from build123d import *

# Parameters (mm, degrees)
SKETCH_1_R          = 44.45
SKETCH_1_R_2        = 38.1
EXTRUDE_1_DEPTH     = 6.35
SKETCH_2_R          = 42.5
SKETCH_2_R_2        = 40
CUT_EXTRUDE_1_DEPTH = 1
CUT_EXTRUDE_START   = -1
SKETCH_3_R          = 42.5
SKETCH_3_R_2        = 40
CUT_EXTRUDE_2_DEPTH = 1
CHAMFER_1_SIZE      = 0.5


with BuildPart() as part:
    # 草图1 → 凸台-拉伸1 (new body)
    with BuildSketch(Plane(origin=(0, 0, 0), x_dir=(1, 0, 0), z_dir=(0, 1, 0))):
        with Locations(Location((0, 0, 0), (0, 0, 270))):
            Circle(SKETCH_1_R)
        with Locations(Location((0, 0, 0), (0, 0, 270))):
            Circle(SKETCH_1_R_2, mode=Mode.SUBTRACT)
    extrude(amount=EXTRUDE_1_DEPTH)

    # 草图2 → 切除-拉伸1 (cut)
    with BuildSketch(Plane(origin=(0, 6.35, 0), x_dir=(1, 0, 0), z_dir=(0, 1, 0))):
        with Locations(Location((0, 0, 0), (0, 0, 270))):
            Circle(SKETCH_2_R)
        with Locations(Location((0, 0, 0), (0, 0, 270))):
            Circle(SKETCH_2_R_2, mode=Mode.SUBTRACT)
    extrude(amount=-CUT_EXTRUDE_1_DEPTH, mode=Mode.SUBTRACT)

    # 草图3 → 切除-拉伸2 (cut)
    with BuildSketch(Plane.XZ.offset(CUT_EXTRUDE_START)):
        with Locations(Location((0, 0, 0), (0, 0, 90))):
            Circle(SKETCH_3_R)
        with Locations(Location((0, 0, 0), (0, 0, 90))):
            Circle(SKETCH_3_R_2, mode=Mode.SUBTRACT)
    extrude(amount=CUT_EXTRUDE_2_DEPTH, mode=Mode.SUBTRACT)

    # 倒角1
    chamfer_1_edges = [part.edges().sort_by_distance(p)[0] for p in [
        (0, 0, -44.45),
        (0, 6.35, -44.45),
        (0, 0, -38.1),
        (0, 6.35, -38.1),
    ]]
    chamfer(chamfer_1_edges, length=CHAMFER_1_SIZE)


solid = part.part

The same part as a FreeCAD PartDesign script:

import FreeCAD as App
import Part
import Sketcher


def edges_at(feature, points):
    """Names of the edges that pass closest to the given points."""
    edges = feature.Shape.Edges
    near = lambda p: min(range(len(edges)), key=lambda i: edges[i].distToShape(Part.Vertex(*p))[0])
    return sorted({f"Edge{near(p) + 1}" for p in points})

doc = App.newDocument("Part")
body = doc.addObject("PartDesign::Body", "Body")

# Sketch on XZ plane
sketch1 = body.newObject("Sketcher::SketchObject", "Sketch")
sketch1.AttachmentSupport = (doc.getObject("XZ_Plane"), [""])
sketch1.MapMode = "FlatFace"
sketch1.addGeometry([
    Part.Circle(App.Vector(0, 0, 0), App.Vector(0, 0, 1), 44),
    Part.Circle(App.Vector(0, 0, 0), App.Vector(0, 0, 1), 38),
], False)
sketch1.addConstraint([
    Sketcher.Constraint("Coincident", 0, 3, -1, 1),
    Sketcher.Constraint("Coincident", 1, 3, -1, 1),
    Sketcher.Constraint("Diameter", 0, 88.9),
    Sketcher.Constraint("Diameter", 1, 76.2),
])
pad1 = body.newObject("PartDesign::Pad", "Pad")
pad1.Profile = sketch1
pad1.Length = 6.35
pad1.Reversed = True

# Sketch on XZ plane
sketch2 = body.newObject("Sketcher::SketchObject", "Sketch001")
sketch2.AttachmentSupport = (doc.getObject("XZ_Plane"), [""])
sketch2.MapMode = "FlatFace"
sketch2.AttachmentOffset = App.Placement(App.Vector(0, 0, -6.35), App.Rotation())
sketch2.addGeometry([
    Part.Circle(App.Vector(0, 0, 0), App.Vector(0, 0, 1), 42),
    Part.Circle(App.Vector(0, 0, 0), App.Vector(0, 0, 1), 40),
], False)
sketch2.addConstraint([
    Sketcher.Constraint("Coincident", 0, 3, -1, 1),
    Sketcher.Constraint("Coincident", 1, 3, -1, 1),
    Sketcher.Constraint("Diameter", 0, 85.0),
    Sketcher.Constraint("Diameter", 1, 80.0),
])
pocket1 = body.newObject("PartDesign::Pocket", "Pocket")
pocket1.Profile = sketch2
pocket1.Length = 1
pocket1.Reversed = True

# Sketch on XZ plane
sketch3 = body.newObject("Sketcher::SketchObject", "Sketch002")
sketch3.AttachmentSupport = (doc.getObject("XZ_Plane"), [""])
sketch3.MapMode = "FlatFace"
sketch3.AttachmentOffset = App.Placement(App.Vector(0, 0, -1), App.Rotation())
sketch3.addGeometry([
    Part.Circle(App.Vector(0, 0, 0), App.Vector(0, 0, 1), 42),
    Part.Circle(App.Vector(0, 0, 0), App.Vector(0, 0, 1), 40),
], False)
sketch3.addConstraint([
    Sketcher.Constraint("Coincident", 0, 3, -1, 1),
    Sketcher.Constraint("Coincident", 1, 3, -1, 1),
    Sketcher.Constraint("Diameter", 0, 85.0),
    Sketcher.Constraint("Diameter", 1, 80.0),
])
pocket2 = body.newObject("PartDesign::Pocket", "Pocket001")
pocket2.Profile = sketch3
pocket2.Length = 1
pocket2.Reversed = True
doc.recompute()

chamfer = body.newObject("PartDesign::Chamfer", "Chamfer")
chamfer.Base = (pocket2, edges_at(pocket2, [
    (0, 0, -44.45),
    (0, 6.35, -44.45),
    (0, 0, -38.1),
    (0, 6.35, -38.1),
]))
chamfer.Size = 0.5

doc.recompute()
